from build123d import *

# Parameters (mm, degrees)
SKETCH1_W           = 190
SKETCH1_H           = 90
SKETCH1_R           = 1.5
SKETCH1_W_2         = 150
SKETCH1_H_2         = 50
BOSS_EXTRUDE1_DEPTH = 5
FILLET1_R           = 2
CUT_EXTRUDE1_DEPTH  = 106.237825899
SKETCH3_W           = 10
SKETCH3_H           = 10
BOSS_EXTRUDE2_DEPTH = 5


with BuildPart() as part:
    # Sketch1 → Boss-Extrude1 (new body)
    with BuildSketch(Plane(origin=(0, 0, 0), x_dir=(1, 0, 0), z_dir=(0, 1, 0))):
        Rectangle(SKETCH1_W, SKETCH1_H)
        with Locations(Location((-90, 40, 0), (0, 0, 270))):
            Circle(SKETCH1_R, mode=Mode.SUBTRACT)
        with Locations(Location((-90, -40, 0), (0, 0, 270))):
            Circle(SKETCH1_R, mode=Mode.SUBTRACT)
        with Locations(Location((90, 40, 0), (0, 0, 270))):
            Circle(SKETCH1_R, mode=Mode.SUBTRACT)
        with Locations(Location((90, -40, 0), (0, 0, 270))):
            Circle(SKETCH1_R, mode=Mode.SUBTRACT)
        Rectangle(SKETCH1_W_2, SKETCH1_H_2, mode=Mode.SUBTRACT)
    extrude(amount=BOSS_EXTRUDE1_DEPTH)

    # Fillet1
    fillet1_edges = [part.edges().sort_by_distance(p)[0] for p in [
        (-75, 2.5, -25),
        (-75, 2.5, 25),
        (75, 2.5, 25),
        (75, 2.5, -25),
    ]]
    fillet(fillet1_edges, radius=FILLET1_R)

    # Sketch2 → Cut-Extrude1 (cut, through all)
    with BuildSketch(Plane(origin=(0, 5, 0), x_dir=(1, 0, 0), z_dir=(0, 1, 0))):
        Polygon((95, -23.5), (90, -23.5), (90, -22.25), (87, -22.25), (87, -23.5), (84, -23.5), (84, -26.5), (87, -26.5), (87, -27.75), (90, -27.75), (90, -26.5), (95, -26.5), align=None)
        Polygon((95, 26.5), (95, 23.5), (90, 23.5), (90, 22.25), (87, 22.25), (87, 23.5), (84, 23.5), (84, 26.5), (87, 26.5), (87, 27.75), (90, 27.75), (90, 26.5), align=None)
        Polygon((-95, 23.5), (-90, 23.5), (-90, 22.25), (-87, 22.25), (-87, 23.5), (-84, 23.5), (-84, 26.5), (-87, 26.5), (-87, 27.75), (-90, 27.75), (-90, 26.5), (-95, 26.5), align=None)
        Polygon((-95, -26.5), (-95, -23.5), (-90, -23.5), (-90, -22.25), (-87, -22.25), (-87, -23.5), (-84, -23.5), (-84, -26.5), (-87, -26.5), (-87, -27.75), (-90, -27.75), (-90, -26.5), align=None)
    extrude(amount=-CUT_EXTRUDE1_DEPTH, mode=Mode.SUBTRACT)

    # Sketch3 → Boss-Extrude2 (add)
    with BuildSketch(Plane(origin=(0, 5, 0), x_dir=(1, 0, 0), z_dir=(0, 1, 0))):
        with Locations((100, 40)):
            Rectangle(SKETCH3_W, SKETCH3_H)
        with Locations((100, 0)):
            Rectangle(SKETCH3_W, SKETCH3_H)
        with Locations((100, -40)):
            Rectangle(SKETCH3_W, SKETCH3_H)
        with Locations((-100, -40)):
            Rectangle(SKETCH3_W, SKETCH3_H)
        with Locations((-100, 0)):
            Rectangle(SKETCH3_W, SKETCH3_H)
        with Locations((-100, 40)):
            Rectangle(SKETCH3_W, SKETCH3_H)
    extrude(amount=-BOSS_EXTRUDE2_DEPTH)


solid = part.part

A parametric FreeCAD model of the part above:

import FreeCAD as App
import Part
import Sketcher

V = App.Vector


def edges_at(feature, points):
    """Names of the edges that pass closest to the given points."""
    edges = feature.Shape.Edges
    near = lambda p: min(range(len(edges)), key=lambda i: edges[i].distToShape(Part.Vertex(*p))[0])
    return sorted({f"Edge{near(p) + 1}" for p in points})

doc = App.newDocument("Part")
body = doc.addObject("PartDesign::Body", "Body")

sketch1 = body.newObject("Sketcher::SketchObject", "Sketch")
sketch1.AttachmentSupport = (doc.getObject("XZ_Plane"), [""])
sketch1.MapMode = "FlatFace"
sketch1.addGeometry(Part.LineSegment(V(-95, -45, 0), V(-95, 45, 0)), False)
sketch1.addGeometry(Part.LineSegment(V(-95, 45, 0), V(95, 45, 0)), False)
sketch1.addGeometry(Part.LineSegment(V(95, 45, 0), V(95, -45, 0)), False)
sketch1.addGeometry(Part.LineSegment(V(95, -45, 0), V(-95, -45, 0)), False)
sketch1.addGeometry(Part.Circle(V(-90, 40, 0), V(0, 0, 1), 1.5), False)
sketch1.addGeometry(Part.Circle(V(90, 40, 0), V(0, 0, 1), 1.5), False)
sketch1.addGeometry(Part.Circle(V(-90, -40, 0), V(0, 0, 1), 1.5), False)
sketch1.addGeometry(Part.LineSegment(V(75, 25, 0), V(-75, 25, 0)), False)
sketch1.addGeometry(Part.LineSegment(V(-75, 25, 0), V(-75, -25, 0)), False)
sketch1.addGeometry(Part.LineSegment(V(-75, -25, 0), V(75, -25, 0)), False)
sketch1.addGeometry(Part.LineSegment(V(75, -25, 0), V(75, 25, 0)), False)
sketch1.addGeometry(Part.Circle(V(90, -40, 0), V(0, 0, 1), 1.5), False)
sketch1.addConstraint(Sketcher.Constraint("Coincident", 0, 2, 1, 1))
sketch1.addConstraint(Sketcher.Constraint("Coincident", 1, 2, 2, 1))
sketch1.addConstraint(Sketcher.Constraint("Coincident", 2, 2, 3, 1))
sketch1.addConstraint(Sketcher.Constraint("Coincident", 3, 2, 0, 1))
sketch1.addConstraint(Sketcher.Constraint("Coincident", 7, 2, 8, 1))
sketch1.addConstraint(Sketcher.Constraint("Coincident", 8, 2, 9, 1))
sketch1.addConstraint(Sketcher.Constraint("Coincident", 9, 2, 10, 1))
sketch1.addConstraint(Sketcher.Constraint("Coincident", 10, 2, 7, 1))
sketch1.addConstraint(Sketcher.Constraint("Vertical", 0))
sketch1.addConstraint(Sketcher.Constraint("Horizontal", 1))
sketch1.addConstraint(Sketcher.Constraint("Vertical", 2))
sketch1.addConstraint(Sketcher.Constraint("Horizontal", 3))
sketch1.addConstraint(Sketcher.Constraint("Horizontal", 7))
sketch1.addConstraint(Sketcher.Constraint("Vertical", 8))
sketch1.addConstraint(Sketcher.Constraint("Horizontal", 9))
sketch1.addConstraint(Sketcher.Constraint("Vertical", 10))
sketch1.addConstraint(Sketcher.Constraint("Equal", 4, 5))
sketch1.addConstraint(Sketcher.Constraint("Equal", 5, 6))
sketch1.addConstraint(Sketcher.Constraint("Equal", 6, 11))
sketch1.addConstraint(Sketcher.Constraint("Symmetric", 5, 3, 6, 3, -1, 1))
sketch1.addConstraint(Sketcher.Constraint("Symmetric", 4, 3, 11, 3, -1, 1))
sketch1.addConstraint(Sketcher.Constraint("Symmetric", 0, 2, 2, 2, -1, 1))
sketch1.addConstraint(Sketcher.Constraint("Symmetric", 7, 2, 9, 2, -1, 1))
sketch1.addConstraint(Sketcher.Constraint("Symmetric", 4, 3, 5, 3, -2))
sketch1.addConstraint(Sketcher.Constraint("Diameter", 4, 3.0))
sketch1.addConstraint(Sketcher.Constraint("DistanceX", 1, 1, 1, 2, 190.0))
sketch1.addConstraint(Sketcher.Constraint("DistanceX", 7, 2, 7, 1, 150.0))
sketch1.addConstraint(Sketcher.Constraint("DistanceY", 0, 1, 0, 2, 90.0))
sketch1.addConstraint(Sketcher.Constraint("DistanceY", 8, 2, 8, 1, 50.0))
sketch1.addConstraint(Sketcher.Constraint("DistanceX", 4, 3, -1, 1, 90.0))
sketch1.addConstraint(Sketcher.Constraint("DistanceY", -1, 1, 4, 3, 40.0))
pad1 = body.newObject("PartDesign::Pad", "Pad")
pad1.Profile = sketch1
pad1.Length = 5
pad1.Reversed = True
doc.recompute()

fillet = body.newObject("PartDesign::Fillet", "Fillet")
fillet.Base = (pad1, edges_at(pad1, [
    (-75, 2.5, -25),
    (-75, 2.5, 25),
    (75, 2.5, 25),
    (75, 2.5, -25),
]))
fillet.Radius = 2

sketch2 = body.newObject("Sketcher::SketchObject", "Sketch001")
sketch2.AttachmentSupport = (doc.getObject("XZ_Plane"), [""])
sketch2.MapMode = "FlatFace"
sketch2.AttachmentOffset = App.Placement(V(0, 0, -5), App.Rotation())
sketch2.addGeometry(Part.LineSegment(V(95, 23.5, 0), V(90, 23.5, 0)), False)
sketch2.addGeometry(Part.LineSegment(V(90, 23.5, 0), V(90, 22.25, 0)), False)
sketch2.addGeometry(Part.LineSegment(V(90, 22.25, 0), V(87, 22.25, 0)), False)
sketch2.addGeometry(Part.LineSegment(V(87, 22.25, 0), V(87, 23.5, 0)), False)
sketch2.addGeometry(Part.LineSegment(V(87, 23.5, 0), V(84, 23.5, 0)), False)
sketch2.addGeometry(Part.LineSegment(V(84, 23.5, 0), V(84, 26.5, 0)), False)
sketch2.addGeometry(Part.LineSegment(V(84, 26.5, 0), V(87, 26.5, 0)), False)
sketch2.addGeometry(Part.LineSegment(V(87, 26.5, 0), V(87, 27.75, 0)), False)
sketch2.addGeometry(Part.LineSegment(V(87, 27.75, 0), V(90, 27.75, 0)), False)
sketch2.addGeometry(Part.LineSegment(V(90, 27.75, 0), V(90, 26.5, 0)), False)
sketch2.addGeometry(Part.LineSegment(V(90, 26.5, 0), V(95, 26.5, 0)), False)
sketch2.addGeometry(Part.LineSegment(V(95, 26.5, 0), V(95, 23.5, 0)), False)
sketch2.addGeometry(Part.LineSegment(V(95, -23.5, 0), V(95, -26.5, 0)), False)
sketch2.addGeometry(Part.LineSegment(V(95, -26.5, 0), V(90, -26.5, 0)), False)
sketch2.addGeometry(Part.LineSegment(V(90, -26.5, 0), V(90, -27.75, 0)), False)
sketch2.addGeometry(Part.LineSegment(V(90, -27.75, 0), V(87, -27.75, 0)), False)
sketch2.addGeometry(Part.LineSegment(V(87, -27.75, 0), V(87, -26.5, 0)), False)
sketch2.addGeometry(Part.LineSegment(V(87, -26.5, 0), V(84, -26.5, 0)), False)
sketch2.addGeometry(Part.LineSegment(V(84, -26.5, 0), V(84, -23.5, 0)), False)
sketch2.addGeometry(Part.LineSegment(V(84, -23.5, 0), V(87, -23.5, 0)), False)
sketch2.addGeometry(Part.LineSegment(V(87, -23.5, 0), V(87, -22.25, 0)), False)
sketch2.addGeometry(Part.LineSegment(V(87, -22.25, 0), V(90, -22.25, 0)), False)
sketch2.addGeometry(Part.LineSegment(V(90, -22.25, 0), V(90, -23.5, 0)), False)
sketch2.addGeometry(Part.LineSegment(V(90, -23.5, 0), V(95, -23.5, 0)), False)
sketch2.addGeometry(Part.LineSegment(V(-95, -23.5, 0), V(-90, -23.5, 0)), False)
sketch2.addGeometry(Part.LineSegment(V(-90, -23.5, 0), V(-90, -22.25, 0)), False)
sketch2.addGeometry(Part.LineSegment(V(-90, -22.25, 0), V(-87, -22.25, 0)), False)
sketch2.addGeometry(Part.LineSegment(V(-87, -22.25, 0), V(-87, -23.5, 0)), False)
sketch2.addGeometry(Part.LineSegment(V(-87, -23.5, 0), V(-84, -23.5, 0)), False)
sketch2.addGeometry(Part.LineSegment(V(-84, -23.5, 0), V(-84, -26.5, 0)), False)
sketch2.addGeometry(Part.LineSegment(V(-84, -26.5, 0), V(-87, -26.5, 0)), False)
sketch2.addGeometry(Part.LineSegment(V(-87, -26.5, 0), V(-87, -27.75, 0)), False)
sketch2.addGeometry(Part.LineSegment(V(-87, -27.75, 0), V(-90, -27.75, 0)), False)
sketch2.addGeometry(Part.LineSegment(V(-90, -27.75, 0), V(-90, -26.5, 0)), False)
sketch2.addGeometry(Part.LineSegment(V(-90, -26.5, 0), V(-95, -26.5, 0)), False)
sketch2.addGeometry(Part.LineSegment(V(-95, -26.5, 0), V(-95, -23.5, 0)), False)
sketch2.addGeometry(Part.LineSegment(V(-95, 23.5, 0), V(-95, 26.5, 0)), False)
sketch2.addGeometry(Part.LineSegment(V(-95, 26.5, 0), V(-90, 26.5, 0)), False)
sketch2.addGeometry(Part.LineSegment(V(-90, 26.5, 0), V(-90, 27.75, 0)), False)
sketch2.addGeometry(Part.LineSegment(V(-90, 27.75, 0), V(-87, 27.75, 0)), False)
sketch2.addGeometry(Part.LineSegment(V(-87, 27.75, 0), V(-87, 26.5, 0)), False)
sketch2.addGeometry(Part.LineSegment(V(-87, 26.5, 0), V(-84, 26.5, 0)), False)
sketch2.addGeometry(Part.LineSegment(V(-84, 26.5, 0), V(-84, 23.5, 0)), False)
sketch2.addGeometry(Part.LineSegment(V(-84, 23.5, 0), V(-87, 23.5, 0)), False)
sketch2.addGeometry(Part.LineSegment(V(-87, 23.5, 0), V(-87, 22.25, 0)), False)
sketch2.addGeometry(Part.LineSegment(V(-87, 22.25, 0), V(-90, 22.25, 0)), False)
sketch2.addGeometry(Part.LineSegment(V(-90, 22.25, 0), V(-90, 23.5, 0)), False)
sketch2.addGeometry(Part.LineSegment(V(-90, 23.5, 0), V(-95, 23.5, 0)), False)
sketch2.addConstraint(Sketcher.Constraint("Coincident", 0, 2, 1, 1))
sketch2.addConstraint(Sketcher.Constraint("Coincident", 1, 2, 2, 1))
sketch2.addConstraint(Sketcher.Constraint("Coincident", 2, 2, 3, 1))
sketch2.addConstraint(Sketcher.Constraint("Coincident", 3, 2, 4, 1))
sketch2.addConstraint(Sketcher.Constraint("Coincident", 4, 2, 5, 1))
sketch2.addConstraint(Sketcher.Constraint("Coincident", 5, 2, 6, 1))
sketch2.addConstraint(Sketcher.Constraint("Coincident", 6, 2, 7, 1))
sketch2.addConstraint(Sketcher.Constraint("Coincident", 7, 2, 8, 1))
sketch2.addConstraint(Sketcher.Constraint("Coincident", 8, 2, 9, 1))
sketch2.addConstraint(Sketcher.Constraint("Coincident", 9, 2, 10, 1))
sketch2.addConstraint(Sketcher.Constraint("Coincident", 10, 2, 11, 1))
sketch2.addConstraint(Sketcher.Constraint("Coincident", 11, 2, 0, 1))
sketch2.addConstraint(Sketcher.Constraint("Coincident", 12, 2, 13, 1))
sketch2.addConstraint(Sketcher.Constraint("Coincident", 13, 2, 14, 1))
sketch2.addConstraint(Sketcher.Constraint("Coincident", 14, 2, 15, 1))
sketch2.addConstraint(Sketcher.Constraint("Coincident", 15, 2, 16, 1))
sketch2.addConstraint(Sketcher.Constraint("Coincident", 16, 2, 17, 1))
sketch2.addConstraint(Sketcher.Constraint("Coincident", 17, 2, 18, 1))
sketch2.addConstraint(Sketcher.Constraint("Coincident", 18, 2, 19, 1))
sketch2.addConstraint(Sketcher.Constraint("Coincident", 19, 2, 20, 1))
sketch2.addConstraint(Sketcher.Constraint("Coincident", 20, 2, 21, 1))
sketch2.addConstraint(Sketcher.Constraint("Coincident", 21, 2, 22, 1))
sketch2.addConstraint(Sketcher.Constraint("Coincident", 22, 2, 23, 1))
sketch2.addConstraint(Sketcher.Constraint("Coincident", 23, 2, 12, 1))
sketch2.addConstraint(Sketcher.Constraint("Coincident", 24, 2, 25, 1))
sketch2.addConstraint(Sketcher.Constraint("Coincident", 25, 2, 26, 1))
sketch2.addConstraint(Sketcher.Constraint("Coincident", 26, 2, 27, 1))
sketch2.addConstraint(Sketcher.Constraint("Coincident", 27, 2, 28, 1))
sketch2.addConstraint(Sketcher.Constraint("Coincident", 28, 2, 29, 1))
sketch2.addConstraint(Sketcher.Constraint("Coincident", 29, 2, 30, 1))
sketch2.addConstraint(Sketcher.Constraint("Coincident", 30, 2, 31, 1))
sketch2.addConstraint(Sketcher.Constraint("Coincident", 31, 2, 32, 1))
sketch2.addConstraint(Sketcher.Constraint("Coincident", 32, 2, 33, 1))
sketch2.addConstraint(Sketcher.Constraint("Coincident", 33, 2, 34, 1))
sketch2.addConstraint(Sketcher.Constraint("Coincident", 34, 2, 35, 1))
sketch2.addConstraint(Sketcher.Constraint("Coincident", 35, 2, 24, 1))
sketch2.addConstraint(Sketcher.Constraint("Coincident", 36, 2, 37, 1))
sketch2.addConstraint(Sketcher.Constraint("Coincident", 37, 2, 38, 1))
sketch2.addConstraint(Sketcher.Constraint("Coincident", 38, 2, 39, 1))
sketch2.addConstraint(Sketcher.Constraint("Coincident", 39, 2, 40, 1))
sketch2.addConstraint(Sketcher.Constraint("Coincident", 40, 2, 41, 1))
sketch2.addConstraint(Sketcher.Constraint("Coincident", 41, 2, 42, 1))
sketch2.addConstraint(Sketcher.Constraint("Coincident", 42, 2, 43, 1))
sketch2.addConstraint(Sketcher.Constraint("Coincident", 43, 2, 44, 1))
sketch2.addConstraint(Sketcher.Constraint("Coincident", 44, 2, 45, 1))
sketch2.addConstraint(Sketcher.Constraint("Coincident", 45, 2, 46, 1))
sketch2.addConstraint(Sketcher.Constraint("Coincident", 46, 2, 47, 1))
sketch2.addConstraint(Sketcher.Constraint("Coincident", 47, 2, 36, 1))
sketch2.addConstraint(Sketcher.Constraint("Horizontal", 0))
sketch2.addConstraint(Sketcher.Constraint("Vertical", 1))
sketch2.addConstraint(Sketcher.Constraint("Horizontal", 2))
sketch2.addConstraint(Sketcher.Constraint("Vertical", 3))
sketch2.addConstraint(Sketcher.Constraint("Horizontal", 4))
sketch2.addConstraint(Sketcher.Constraint("Vertical", 5))
sketch2.addConstraint(Sketcher.Constraint("Horizontal", 6))
sketch2.addConstraint(Sketcher.Constraint("Vertical", 7))
sketch2.addConstraint(Sketcher.Constraint("Horizontal", 8))
sketch2.addConstraint(Sketcher.Constraint("Vertical", 9))
sketch2.addConstraint(Sketcher.Constraint("Horizontal", 10))
sketch2.addConstraint(Sketcher.Constraint("Vertical", 11))
sketch2.addConstraint(Sketcher.Constraint("Vertical", 12))
sketch2.addConstraint(Sketcher.Constraint("Horizontal", 13))
sketch2.addConstraint(Sketcher.Constraint("Vertical", 14))
sketch2.addConstraint(Sketcher.Constraint("Horizontal", 15))
sketch2.addConstraint(Sketcher.Constraint("Vertical", 16))
sketch2.addConstraint(Sketcher.Constraint("Horizontal", 17))
sketch2.addConstraint(Sketcher.Constraint("Vertical", 18))
sketch2.addConstraint(Sketcher.Constraint("Horizontal", 19))
sketch2.addConstraint(Sketcher.Constraint("Vertical", 20))
sketch2.addConstraint(Sketcher.Constraint("Horizontal", 21))
sketch2.addConstraint(Sketcher.Constraint("Vertical", 22))
sketch2.addConstraint(Sketcher.Constraint("Horizontal", 23))
sketch2.addConstraint(Sketcher.Constraint("Horizontal", 24))
sketch2.addConstraint(Sketcher.Constraint("Vertical", 25))
sketch2.addConstraint(Sketcher.Constraint("Horizontal", 26))
sketch2.addConstraint(Sketcher.Constraint("Vertical", 27))
sketch2.addConstraint(Sketcher.Constraint("Horizontal", 28))
sketch2.addConstraint(Sketcher.Constraint("Vertical", 29))
sketch2.addConstraint(Sketcher.Constraint("Horizontal", 30))
sketch2.addConstraint(Sketcher.Constraint("Vertical", 31))
sketch2.addConstraint(Sketcher.Constraint("Horizontal", 32))
sketch2.addConstraint(Sketcher.Constraint("Vertical", 33))
sketch2.addConstraint(Sketcher.Constraint("Horizontal", 34))
sketch2.addConstraint(Sketcher.Constraint("Vertical", 35))
sketch2.addConstraint(Sketcher.Constraint("Vertical", 36))
sketch2.addConstraint(Sketcher.Constraint("Horizontal", 37))
sketch2.addConstraint(Sketcher.Constraint("Vertical", 38))
sketch2.addConstraint(Sketcher.Constraint("Horizontal", 39))
sketch2.addConstraint(Sketcher.Constraint("Vertical", 40))
sketch2.addConstraint(Sketcher.Constraint("Horizontal", 41))
sketch2.addConstraint(Sketcher.Constraint("Vertical", 42))
sketch2.addConstraint(Sketcher.Constraint("Horizontal", 43))
sketch2.addConstraint(Sketcher.Constraint("Vertical", 44))
sketch2.addConstraint(Sketcher.Constraint("Horizontal", 45))
sketch2.addConstraint(Sketcher.Constraint("Vertical", 46))
sketch2.addConstraint(Sketcher.Constraint("Horizontal", 47))
sketch2.addConstraint(Sketcher.Constraint("Symmetric", 0, 2, 24, 2, -1, 1))
sketch2.addConstraint(Sketcher.Constraint("Symmetric", 2, 2, 26, 2, -1, 1))
sketch2.addConstraint(Sketcher.Constraint("Symmetric", 4, 2, 28, 2, -1, 1))
sketch2.addConstraint(Sketcher.Constraint("Symmetric", 6, 2, 30, 2, -1, 1))
sketch2.addConstraint(Sketcher.Constraint("Symmetric", 8, 2, 32, 2, -1, 1))
sketch2.addConstraint(Sketcher.Constraint("Symmetric", 10, 2, 34, 2, -1, 1))
sketch2.addConstraint(Sketcher.Constraint("Symmetric", 12, 2, 36, 2, -1, 1))
sketch2.addConstraint(Sketcher.Constraint("Symmetric", 14, 2, 38, 2, -1, 1))
sketch2.addConstraint(Sketcher.Constraint("Symmetric", 16, 2, 40, 2, -1, 1))
sketch2.addConstraint(Sketcher.Constraint("Symmetric", 18, 2, 42, 2, -1, 1))
sketch2.addConstraint(Sketcher.Constraint("Symmetric", 20, 2, 44, 2, -1, 1))
sketch2.addConstraint(Sketcher.Constraint("Symmetric", 22, 2, 46, 2, -1, 1))
sketch2.addConstraint(Sketcher.Constraint("Symmetric", 22, 2, 24, 2, -2))
sketch2.addConstraint(Sketcher.Constraint("Symmetric", 20, 2, 26, 2, -2))
sketch2.addConstraint(Sketcher.Constraint("Symmetric", 18, 2, 28, 2, -2))
sketch2.addConstraint(Sketcher.Constraint("Symmetric", 16, 2, 30, 2, -2))
sketch2.addConstraint(Sketcher.Constraint("Symmetric", 14, 2, 32, 2, -2))
sketch2.addConstraint(Sketcher.Constraint("Symmetric", 12, 2, 34, 2, -2))
sketch2.addConstraint(Sketcher.Constraint("Horizontal", 0, 2, 3, 2))
sketch2.addConstraint(Sketcher.Constraint("Horizontal", 6, 2, 9, 2))
sketch2.addConstraint(Sketcher.Constraint("Vertical", 3, 2, 6, 2))
sketch2.addConstraint(Sketcher.Constraint("Vertical", 1, 2, 8, 2))
sketch2.addConstraint(Sketcher.Constraint("Equal", 2, 4))
sketch2.addConstraint(Sketcher.Constraint("Equal", 45, 5))
sketch2.addConstraint(Sketcher.Constraint("Equal", 3, 7))
sketch2.addConstraint(Sketcher.Constraint("DistanceX", 0, 2, 0, 1, 5.0))
sketch2.addConstraint(Sketcher.Constraint("DistanceX", 2, 2, 2, 1, 3.0))
sketch2.addConstraint(Sketcher.Constraint("DistanceX", -1, 1, 0, 2, 90.0))
sketch2.addConstraint(Sketcher.Constraint("DistanceY", 12, 2, 11, 2, 50.0))
sketch2.addConstraint(Sketcher.Constraint("DistanceY", 1, 2, 1, 1, 1.25))
pocket1 = body.newObject("PartDesign::Pocket", "Pocket")
pocket1.Profile = sketch2
pocket1.Type = "ThroughAll"
pocket1.Reversed = True

sketch3 = body.newObject("Sketcher::SketchObject", "Sketch002")
sketch3.AttachmentSupport = (doc.getObject("XZ_Plane"), [""])
sketch3.MapMode = "FlatFace"
sketch3.AttachmentOffset = App.Placement(V(0, 0, -5), App.Rotation())
sketch3.addGeometry(Part.LineSegment(V(95, -45, 0), V(95, -35, 0)), False)
sketch3.addGeometry(Part.LineSegment(V(95, -35, 0), V(105, -35, 0)), False)
sketch3.addGeometry(Part.LineSegment(V(105, -35, 0), V(105, -45, 0)), False)
sketch3.addGeometry(Part.LineSegment(V(105, -45, 0), V(95, -45, 0)), False)
sketch3.addGeometry(Part.LineSegment(V(95, -5, 0), V(95, 5, 0)), False)
sketch3.addGeometry(Part.LineSegment(V(95, 5, 0), V(105, 5, 0)), False)
sketch3.addGeometry(Part.LineSegment(V(105, 5, 0), V(105, -5, 0)), False)
sketch3.addGeometry(Part.LineSegment(V(105, -5, 0), V(95, -5, 0)), False)
sketch3.addGeometry(Part.LineSegment(V(95, 35, 0), V(95, 45, 0)), False)
sketch3.addGeometry(Part.LineSegment(V(95, 45, 0), V(105, 45, 0)), False)
sketch3.addGeometry(Part.LineSegment(V(105, 45, 0), V(105, 35, 0)), False)
sketch3.addGeometry(Part.LineSegment(V(105, 35, 0), V(95, 35, 0)), False)
sketch3.addGeometry(Part.LineSegment(V(-105, 35, 0), V(-105, 45, 0)), False)
sketch3.addGeometry(Part.LineSegment(V(-105, 45, 0), V(-95, 45, 0)), False)
sketch3.addGeometry(Part.LineSegment(V(-95, 45, 0), V(-95, 35, 0)), False)
sketch3.addGeometry(Part.LineSegment(V(-95, 35, 0), V(-105, 35, 0)), False)
sketch3.addGeometry(Part.LineSegment(V(-105, -5, 0), V(-105, 5, 0)), False)
sketch3.addGeometry(Part.LineSegment(V(-105, 5, 0), V(-95, 5, 0)), False)
sketch3.addGeometry(Part.LineSegment(V(-95, 5, 0), V(-95, -5, 0)), False)
sketch3.addGeometry(Part.LineSegment(V(-95, -5, 0), V(-105, -5, 0)), False)
sketch3.addGeometry(Part.LineSegment(V(-105, -45, 0), V(-105, -35, 0)), False)
sketch3.addGeometry(Part.LineSegment(V(-105, -35, 0), V(-95, -35, 0)), False)
sketch3.addGeometry(Part.LineSegment(V(-95, -35, 0), V(-95, -45, 0)), False)
sketch3.addGeometry(Part.LineSegment(V(-95, -45, 0), V(-105, -45, 0)), False)
sketch3.addConstraint(Sketcher.Constraint("Coincident", 0, 2, 1, 1))
sketch3.addConstraint(Sketcher.Constraint("Coincident", 1, 2, 2, 1))
sketch3.addConstraint(Sketcher.Constraint("Coincident", 2, 2, 3, 1))
sketch3.addConstraint(Sketcher.Constraint("Coincident", 3, 2, 0, 1))
sketch3.addConstraint(Sketcher.Constraint("Coincident", 4, 2, 5, 1))
sketch3.addConstraint(Sketcher.Constraint("Coincident", 5, 2, 6, 1))
sketch3.addConstraint(Sketcher.Constraint("Coincident", 6, 2, 7, 1))
sketch3.addConstraint(Sketcher.Constraint("Coincident", 7, 2, 4, 1))
sketch3.addConstraint(Sketcher.Constraint("Coincident", 8, 2, 9, 1))
sketch3.addConstraint(Sketcher.Constraint("Coincident", 9, 2, 10, 1))
sketch3.addConstraint(Sketcher.Constraint("Coincident", 10, 2, 11, 1))
sketch3.addConstraint(Sketcher.Constraint("Coincident", 11, 2, 8, 1))
sketch3.addConstraint(Sketcher.Constraint("Coincident", 12, 2, 13, 1))
sketch3.addConstraint(Sketcher.Constraint("Coincident", 13, 2, 14, 1))
sketch3.addConstraint(Sketcher.Constraint("Coincident", 14, 2, 15, 1))
sketch3.addConstraint(Sketcher.Constraint("Coincident", 15, 2, 12, 1))
sketch3.addConstraint(Sketcher.Constraint("Coincident", 16, 2, 17, 1))
sketch3.addConstraint(Sketcher.Constraint("Coincident", 17, 2, 18, 1))
sketch3.addConstraint(Sketcher.Constraint("Coincident", 18, 2, 19, 1))
sketch3.addConstraint(Sketcher.Constraint("Coincident", 19, 2, 16, 1))
sketch3.addConstraint(Sketcher.Constraint("Coincident", 20, 2, 21, 1))
sketch3.addConstraint(Sketcher.Constraint("Coincident", 21, 2, 22, 1))
sketch3.addConstraint(Sketcher.Constraint("Coincident", 22, 2, 23, 1))
sketch3.addConstraint(Sketcher.Constraint("Coincident", 23, 2, 20, 1))
sketch3.addConstraint(Sketcher.Constraint("Vertical", 0))
sketch3.addConstraint(Sketcher.Constraint("Horizontal", 1))
sketch3.addConstraint(Sketcher.Constraint("Vertical", 2))
sketch3.addConstraint(Sketcher.Constraint("Horizontal", 3))
sketch3.addConstraint(Sketcher.Constraint("Vertical", 4))
sketch3.addConstraint(Sketcher.Constraint("Horizontal", 5))
sketch3.addConstraint(Sketcher.Constraint("Vertical", 6))
sketch3.addConstraint(Sketcher.Constraint("Horizontal", 7))
sketch3.addConstraint(Sketcher.Constraint("Vertical", 8))
sketch3.addConstraint(Sketcher.Constraint("Horizontal", 9))
sketch3.addConstraint(Sketcher.Constraint("Vertical", 10))
sketch3.addConstraint(Sketcher.Constraint("Horizontal", 11))
sketch3.addConstraint(Sketcher.Constraint("Vertical", 12))
sketch3.addConstraint(Sketcher.Constraint("Horizontal", 13))
sketch3.addConstraint(Sketcher.Constraint("Vertical", 14))
sketch3.addConstraint(Sketcher.Constraint("Horizontal", 15))
sketch3.addConstraint(Sketcher.Constraint("Vertical", 16))
sketch3.addConstraint(Sketcher.Constraint("Horizontal", 17))
sketch3.addConstraint(Sketcher.Constraint("Vertical", 18))
sketch3.addConstraint(Sketcher.Constraint("Horizontal", 19))
sketch3.addConstraint(Sketcher.Constraint("Vertical", 20))
sketch3.addConstraint(Sketcher.Constraint("Horizontal", 21))
sketch3.addConstraint(Sketcher.Constraint("Vertical", 22))
sketch3.addConstraint(Sketcher.Constraint("Horizontal", 23))
sketch3.addConstraint(Sketcher.Constraint("Symmetric", 2, 2, 12, 2, -1, 1))
sketch3.addConstraint(Sketcher.Constraint("Symmetric", 0, 2, 14, 2, -1, 1))
sketch3.addConstraint(Sketcher.Constraint("Symmetric", 6, 2, 16, 2, -1, 1))
sketch3.addConstraint(Sketcher.Constraint("Symmetric", 4, 2, 18, 2, -1, 1))
sketch3.addConstraint(Sketcher.Constraint("Symmetric", 10, 2, 20, 2, -1, 1))
sketch3.addConstraint(Sketcher.Constraint("Symmetric", 8, 2, 22, 2, -1, 1))
sketch3.addConstraint(Sketcher.Constraint("Symmetric", 9, 2, 12, 2, -2))
sketch3.addConstraint(Sketcher.Constraint("Symmetric", 11, 2, 14, 2, -2))
sketch3.addConstraint(Sketcher.Constraint("Horizontal", 5, 2, 16, 2))
sketch3.addConstraint(Sketcher.Constraint("Vertical", 3, 2, 4, 2))
sketch3.addConstraint(Sketcher.Constraint("Vertical", 2, 2, 5, 2))
sketch3.addConstraint(Sketcher.Constraint("Equal", 23, 0))
sketch3.addConstraint(Sketcher.Constraint("Equal", 2, 4))
sketch3.addConstraint(Sketcher.Constraint("DistanceX", 1, 1, 1, 2, 10.0))
sketch3.addConstraint(Sketcher.Constraint("DistanceX", -1, 1, 0, 2, 95.0))
sketch3.addConstraint(Sketcher.Constraint("DistanceY", 0, 2, -1, 1, 35.0))
pad2 = body.newObject("PartDesign::Pad", "Pad001")
pad2.Profile = sketch3
pad2.Length = 5

doc.recompute()
